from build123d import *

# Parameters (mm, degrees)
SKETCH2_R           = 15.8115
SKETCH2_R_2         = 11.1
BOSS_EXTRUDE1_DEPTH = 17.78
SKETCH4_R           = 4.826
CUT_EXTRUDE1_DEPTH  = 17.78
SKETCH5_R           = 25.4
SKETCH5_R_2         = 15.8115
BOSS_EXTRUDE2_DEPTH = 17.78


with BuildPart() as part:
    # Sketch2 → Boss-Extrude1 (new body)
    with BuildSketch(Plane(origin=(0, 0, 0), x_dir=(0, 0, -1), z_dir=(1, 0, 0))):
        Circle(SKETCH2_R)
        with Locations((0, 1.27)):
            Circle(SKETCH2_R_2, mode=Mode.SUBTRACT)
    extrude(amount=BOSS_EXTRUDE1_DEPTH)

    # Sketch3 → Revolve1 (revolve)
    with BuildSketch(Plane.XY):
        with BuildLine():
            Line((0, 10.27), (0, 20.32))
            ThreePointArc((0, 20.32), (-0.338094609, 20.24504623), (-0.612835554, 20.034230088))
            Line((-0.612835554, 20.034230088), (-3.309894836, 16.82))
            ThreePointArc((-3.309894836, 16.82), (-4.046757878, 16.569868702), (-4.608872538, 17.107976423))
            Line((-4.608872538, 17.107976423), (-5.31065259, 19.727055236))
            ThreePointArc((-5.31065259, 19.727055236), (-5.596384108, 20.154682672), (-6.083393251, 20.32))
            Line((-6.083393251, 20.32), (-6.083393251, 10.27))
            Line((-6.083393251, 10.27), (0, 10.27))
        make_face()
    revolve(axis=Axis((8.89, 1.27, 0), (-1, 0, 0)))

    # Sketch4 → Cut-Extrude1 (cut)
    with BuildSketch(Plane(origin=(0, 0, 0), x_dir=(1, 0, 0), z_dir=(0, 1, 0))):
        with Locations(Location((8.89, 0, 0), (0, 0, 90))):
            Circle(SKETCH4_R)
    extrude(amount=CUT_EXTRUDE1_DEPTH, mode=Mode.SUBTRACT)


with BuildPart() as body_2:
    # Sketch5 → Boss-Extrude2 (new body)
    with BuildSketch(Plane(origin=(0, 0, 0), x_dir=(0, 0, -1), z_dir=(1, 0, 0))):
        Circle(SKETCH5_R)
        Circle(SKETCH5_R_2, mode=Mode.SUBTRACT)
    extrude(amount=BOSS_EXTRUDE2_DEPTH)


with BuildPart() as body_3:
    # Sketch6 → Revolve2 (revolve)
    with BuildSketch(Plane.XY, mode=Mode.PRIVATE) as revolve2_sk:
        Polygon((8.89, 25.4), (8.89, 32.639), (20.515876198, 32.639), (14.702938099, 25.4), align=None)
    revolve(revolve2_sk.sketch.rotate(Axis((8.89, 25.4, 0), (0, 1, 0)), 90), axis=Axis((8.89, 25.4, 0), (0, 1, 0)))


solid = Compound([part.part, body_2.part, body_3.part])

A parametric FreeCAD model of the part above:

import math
import FreeCAD as App
import Part
import Sketcher

V = App.Vector
Q = App.Units.Quantity


def add_polygon(sketch, points):
    """Adds a closed chain of lines whose ends are joined by coincident constraints."""
    first, n = sketch.GeometryCount, len(points)
    for a, b in zip(points, points[1:] + points[:1]):
        sketch.addGeometry(Part.LineSegment(App.Vector(*a, 0), App.Vector(*b, 0)), False)
    for i in range(n):
        sketch.addConstraint(Sketcher.Constraint("Coincident", first + i, 2, first + (i + 1) % n, 1))

doc = App.newDocument("Part")
body = doc.addObject("PartDesign::Body", "Body")

# Sketch on YZ plane
sketch1 = body.newObject("Sketcher::SketchObject", "Sketch")
sketch1.AttachmentSupport = (doc.getObject("YZ_Plane"), [""])
sketch1.MapMode = "FlatFace"
sketch1.addGeometry([
    Part.Circle(V(0, 0, 0), V(0, 0, 1), 15.8115),
    Part.Circle(V(1.27, 0, 0), V(0, 0, 1), 11.1),
], False)
sketch1.addConstraint([
    Sketcher.Constraint("Coincident", 0, 3, -1, 1),
    Sketcher.Constraint("PointOnObject", 1, 3, -1),
    Sketcher.Constraint("Diameter", 0, Q("1.245 in")),
    Sketcher.Constraint("Diameter", 1, 22.2),
    Sketcher.Constraint("DistanceX", -1, 1, 1, 3, Q("0.05 in")),
])
pad1 = body.newObject("PartDesign::Pad", "Pad")
pad1.Profile = sketch1
pad1.Length = Q("0.7 in")

# Sketch on XY plane
sketch2 = body.newObject("Sketcher::SketchObject", "Sketch001")
sketch2.AttachmentSupport = (doc.getObject("XY_Plane"), [""])
sketch2.MapMode = "FlatFace"
sketch2.addGeometry([
    Part.LineSegment(V(0, 10.27, 0), V(0, 20.32, 0)),  # 0
    Part.ArcOfCircle(Part.Circle(V(0, 19.52, 0), V(0, 0, 1), 0.8), math.radians(90), math.radians(140)),  # 1
    Part.LineSegment(V(-0.612836, 20.03423, 0), V(-3.309895, 16.82, 0)),  # 2
    Part.ArcOfCircle(Part.Circle(V(-3.884428, 17.302091, 0), V(0, 0, 1), 0.75), math.radians(-165), math.radians(-40)),  # 3
    Part.LineSegment(V(-4.608873, 17.107976, 0), V(-5.310653, 19.727055, 0)),  # 4
    Part.ArcOfCircle(Part.Circle(V(-6.083393, 19.52, 0), V(0, 0, 1), 0.8), math.radians(15), math.radians(90)),  # 5
    Part.LineSegment(V(-6.083393, 20.32, 0), V(-6.083393, 10.27, 0)),  # 6
    Part.LineSegment(V(-6.083393, 10.27, 0), V(0, 10.27, 0)),  # 7
], False)
sketch2.addGeometry(Part.LineSegment(V(0, 1.27, 0), V(-6.083393, 1.27, 0)), True)  # axis
sketch2.addConstraint([
    Sketcher.Constraint("Coincident", 0, 2, 1, 1),
    Sketcher.Constraint("Tangent", 1, 2, 2, 1),
    Sketcher.Constraint("Tangent", 2, 2, 3, 2),
    Sketcher.Constraint("Tangent", 3, 1, 4, 1),
    Sketcher.Constraint("Tangent", 4, 2, 5, 1),
    Sketcher.Constraint("Coincident", 5, 2, 6, 1),
    Sketcher.Constraint("Coincident", 6, 2, 7, 1),
    Sketcher.Constraint("Coincident", 7, 2, 0, 1),
    Sketcher.Constraint("Vertical", 0),
    Sketcher.Constraint("Vertical", 6),
    Sketcher.Constraint("Horizontal", 7),
    Sketcher.Constraint("Horizontal", 8),
    Sketcher.Constraint("Equal", 1, 5),
    Sketcher.Constraint("PointOnObject", 1, 3, -2),
    Sketcher.Constraint("PointOnObject", 0, 2, -2),
    Sketcher.Constraint("PointOnObject", 8, 1, -2),
    Sketcher.Constraint("Horizontal", 1, 3, 5, 3),
    Sketcher.Constraint("Vertical", 6, 2, 8, 2),
    Sketcher.Constraint("Angle", 2, Q("-130 deg")),
    Sketcher.Constraint("Angle", 4, Q("105 deg")),
    Sketcher.Constraint("DistanceY", -1, 1, 0, 2, Q("0.8 in")),
    Sketcher.Constraint("DistanceY", -1, 1, 8, 1, Q("0.05 in")),
    Sketcher.Constraint("Radius", 1, 0.8),
    Sketcher.Constraint("Radius", 3, 0.75),
    Sketcher.Constraint("DistanceY", 0, 1, 0, 2, 10.05),
    Sketcher.Constraint("DistanceY", -1, 1, 2, 2, 16.82),
    Sketcher.Constraint("DistanceX", 5, 2, 2, 2, 2.773498),
])
revolution = body.newObject("PartDesign::Revolution", "Revolution")
revolution.Profile = sketch2
revolution.ReferenceAxis = (sketch2, ["Axis0"])
revolution.Angle = 360

# Sketch on XZ plane
sketch3 = body.newObject("Sketcher::SketchObject", "Sketch002")
sketch3.AttachmentSupport = (doc.getObject("XZ_Plane"), [""])
sketch3.MapMode = "FlatFace"
sketch3.addGeometry(Part.Circle(V(8.89, 0, 0), V(0, 0, 1), 4.826), False)
sketch3.addConstraint([
    Sketcher.Constraint("PointOnObject", 0, 3, -1),
    Sketcher.Constraint("Diameter", 0, Q("0.38 in")),
    Sketcher.Constraint("DistanceX", -1, 1, 0, 3, Q("0.35 in")),
])
pocket1 = body.newObject("PartDesign::Pocket", "Pocket")
pocket1.Profile = sketch3
pocket1.Length = Q("0.7 in")
body2 = doc.addObject("PartDesign::Body", "Body001")

# Sketch on YZ plane
sketch4 = body2.newObject("Sketcher::SketchObject", "Sketch003")
sketch4.AttachmentSupport = (doc.getObject("YZ_Plane001"), [""])
sketch4.MapMode = "FlatFace"
sketch4.addGeometry([
    Part.Circle(V(0, 0, 0), V(0, 0, 1), 25.4),
    Part.Circle(V(0, 0, 0), V(0, 0, 1), 15.8115),
], False)
sketch4.addConstraint([
    Sketcher.Constraint("Coincident", 0, 3, -1, 1),
    Sketcher.Constraint("Coincident", 1, 3, -1, 1),
    Sketcher.Constraint("Diameter", 0, Q("2 in")),
    Sketcher.Constraint("Diameter", 1, Q("1.245 in")),
])
pad2 = body2.newObject("PartDesign::Pad", "Pad001")
pad2.Profile = sketch4
pad2.Length = Q("0.7 in")
body3 = doc.addObject("PartDesign::Body", "Body002")

# Sketch on XY plane
sketch5 = body3.newObject("Sketcher::SketchObject", "Sketch004")
sketch5.AttachmentSupport = (doc.getObject("XY_Plane002"), [""])
sketch5.MapMode = "FlatFace"
add_polygon(sketch5, [(8.89, 32.639), (8.89, 25.4), (14.702938, 25.4), (20.515876, 32.639)])  # lines 0-3
sketch5.addGeometry(Part.LineSegment(V(8.89, 25.4, 0), V(8.89, 32.639, 0)), True)  # axis
sketch5.addConstraint([
    Sketcher.Constraint("Vertical", 0),
    Sketcher.Constraint("Horizontal", 1),
    Sketcher.Constraint("Horizontal", 3),
    Sketcher.Constraint("Vertical", 4),
    Sketcher.Constraint("Coincident", 4, 1, 0, 2),
    Sketcher.Constraint("Horizontal", 2, 2, 4, 2),
    Sketcher.Constraint("DistanceY", -1, 1, 0, 2, Q("1 in")),
    Sketcher.Constraint("DistanceY", 0, 2, 0, 1, Q("0.285 in")),
    Sketcher.Constraint("DistanceX", -1, 1, 0, 2, Q("0.35 in")),
    Sketcher.Constraint("DistanceX", 1, 1, 1, 2, 5.812938),
    Sketcher.Constraint("Distance", 2, 9.284038),
])
revolution2 = body3.newObject("PartDesign::Revolution", "Revolution001")
revolution2.Profile = sketch5
revolution2.ReferenceAxis = (sketch5, ["Axis0"])
revolution2.Angle = 360

doc.recompute()
